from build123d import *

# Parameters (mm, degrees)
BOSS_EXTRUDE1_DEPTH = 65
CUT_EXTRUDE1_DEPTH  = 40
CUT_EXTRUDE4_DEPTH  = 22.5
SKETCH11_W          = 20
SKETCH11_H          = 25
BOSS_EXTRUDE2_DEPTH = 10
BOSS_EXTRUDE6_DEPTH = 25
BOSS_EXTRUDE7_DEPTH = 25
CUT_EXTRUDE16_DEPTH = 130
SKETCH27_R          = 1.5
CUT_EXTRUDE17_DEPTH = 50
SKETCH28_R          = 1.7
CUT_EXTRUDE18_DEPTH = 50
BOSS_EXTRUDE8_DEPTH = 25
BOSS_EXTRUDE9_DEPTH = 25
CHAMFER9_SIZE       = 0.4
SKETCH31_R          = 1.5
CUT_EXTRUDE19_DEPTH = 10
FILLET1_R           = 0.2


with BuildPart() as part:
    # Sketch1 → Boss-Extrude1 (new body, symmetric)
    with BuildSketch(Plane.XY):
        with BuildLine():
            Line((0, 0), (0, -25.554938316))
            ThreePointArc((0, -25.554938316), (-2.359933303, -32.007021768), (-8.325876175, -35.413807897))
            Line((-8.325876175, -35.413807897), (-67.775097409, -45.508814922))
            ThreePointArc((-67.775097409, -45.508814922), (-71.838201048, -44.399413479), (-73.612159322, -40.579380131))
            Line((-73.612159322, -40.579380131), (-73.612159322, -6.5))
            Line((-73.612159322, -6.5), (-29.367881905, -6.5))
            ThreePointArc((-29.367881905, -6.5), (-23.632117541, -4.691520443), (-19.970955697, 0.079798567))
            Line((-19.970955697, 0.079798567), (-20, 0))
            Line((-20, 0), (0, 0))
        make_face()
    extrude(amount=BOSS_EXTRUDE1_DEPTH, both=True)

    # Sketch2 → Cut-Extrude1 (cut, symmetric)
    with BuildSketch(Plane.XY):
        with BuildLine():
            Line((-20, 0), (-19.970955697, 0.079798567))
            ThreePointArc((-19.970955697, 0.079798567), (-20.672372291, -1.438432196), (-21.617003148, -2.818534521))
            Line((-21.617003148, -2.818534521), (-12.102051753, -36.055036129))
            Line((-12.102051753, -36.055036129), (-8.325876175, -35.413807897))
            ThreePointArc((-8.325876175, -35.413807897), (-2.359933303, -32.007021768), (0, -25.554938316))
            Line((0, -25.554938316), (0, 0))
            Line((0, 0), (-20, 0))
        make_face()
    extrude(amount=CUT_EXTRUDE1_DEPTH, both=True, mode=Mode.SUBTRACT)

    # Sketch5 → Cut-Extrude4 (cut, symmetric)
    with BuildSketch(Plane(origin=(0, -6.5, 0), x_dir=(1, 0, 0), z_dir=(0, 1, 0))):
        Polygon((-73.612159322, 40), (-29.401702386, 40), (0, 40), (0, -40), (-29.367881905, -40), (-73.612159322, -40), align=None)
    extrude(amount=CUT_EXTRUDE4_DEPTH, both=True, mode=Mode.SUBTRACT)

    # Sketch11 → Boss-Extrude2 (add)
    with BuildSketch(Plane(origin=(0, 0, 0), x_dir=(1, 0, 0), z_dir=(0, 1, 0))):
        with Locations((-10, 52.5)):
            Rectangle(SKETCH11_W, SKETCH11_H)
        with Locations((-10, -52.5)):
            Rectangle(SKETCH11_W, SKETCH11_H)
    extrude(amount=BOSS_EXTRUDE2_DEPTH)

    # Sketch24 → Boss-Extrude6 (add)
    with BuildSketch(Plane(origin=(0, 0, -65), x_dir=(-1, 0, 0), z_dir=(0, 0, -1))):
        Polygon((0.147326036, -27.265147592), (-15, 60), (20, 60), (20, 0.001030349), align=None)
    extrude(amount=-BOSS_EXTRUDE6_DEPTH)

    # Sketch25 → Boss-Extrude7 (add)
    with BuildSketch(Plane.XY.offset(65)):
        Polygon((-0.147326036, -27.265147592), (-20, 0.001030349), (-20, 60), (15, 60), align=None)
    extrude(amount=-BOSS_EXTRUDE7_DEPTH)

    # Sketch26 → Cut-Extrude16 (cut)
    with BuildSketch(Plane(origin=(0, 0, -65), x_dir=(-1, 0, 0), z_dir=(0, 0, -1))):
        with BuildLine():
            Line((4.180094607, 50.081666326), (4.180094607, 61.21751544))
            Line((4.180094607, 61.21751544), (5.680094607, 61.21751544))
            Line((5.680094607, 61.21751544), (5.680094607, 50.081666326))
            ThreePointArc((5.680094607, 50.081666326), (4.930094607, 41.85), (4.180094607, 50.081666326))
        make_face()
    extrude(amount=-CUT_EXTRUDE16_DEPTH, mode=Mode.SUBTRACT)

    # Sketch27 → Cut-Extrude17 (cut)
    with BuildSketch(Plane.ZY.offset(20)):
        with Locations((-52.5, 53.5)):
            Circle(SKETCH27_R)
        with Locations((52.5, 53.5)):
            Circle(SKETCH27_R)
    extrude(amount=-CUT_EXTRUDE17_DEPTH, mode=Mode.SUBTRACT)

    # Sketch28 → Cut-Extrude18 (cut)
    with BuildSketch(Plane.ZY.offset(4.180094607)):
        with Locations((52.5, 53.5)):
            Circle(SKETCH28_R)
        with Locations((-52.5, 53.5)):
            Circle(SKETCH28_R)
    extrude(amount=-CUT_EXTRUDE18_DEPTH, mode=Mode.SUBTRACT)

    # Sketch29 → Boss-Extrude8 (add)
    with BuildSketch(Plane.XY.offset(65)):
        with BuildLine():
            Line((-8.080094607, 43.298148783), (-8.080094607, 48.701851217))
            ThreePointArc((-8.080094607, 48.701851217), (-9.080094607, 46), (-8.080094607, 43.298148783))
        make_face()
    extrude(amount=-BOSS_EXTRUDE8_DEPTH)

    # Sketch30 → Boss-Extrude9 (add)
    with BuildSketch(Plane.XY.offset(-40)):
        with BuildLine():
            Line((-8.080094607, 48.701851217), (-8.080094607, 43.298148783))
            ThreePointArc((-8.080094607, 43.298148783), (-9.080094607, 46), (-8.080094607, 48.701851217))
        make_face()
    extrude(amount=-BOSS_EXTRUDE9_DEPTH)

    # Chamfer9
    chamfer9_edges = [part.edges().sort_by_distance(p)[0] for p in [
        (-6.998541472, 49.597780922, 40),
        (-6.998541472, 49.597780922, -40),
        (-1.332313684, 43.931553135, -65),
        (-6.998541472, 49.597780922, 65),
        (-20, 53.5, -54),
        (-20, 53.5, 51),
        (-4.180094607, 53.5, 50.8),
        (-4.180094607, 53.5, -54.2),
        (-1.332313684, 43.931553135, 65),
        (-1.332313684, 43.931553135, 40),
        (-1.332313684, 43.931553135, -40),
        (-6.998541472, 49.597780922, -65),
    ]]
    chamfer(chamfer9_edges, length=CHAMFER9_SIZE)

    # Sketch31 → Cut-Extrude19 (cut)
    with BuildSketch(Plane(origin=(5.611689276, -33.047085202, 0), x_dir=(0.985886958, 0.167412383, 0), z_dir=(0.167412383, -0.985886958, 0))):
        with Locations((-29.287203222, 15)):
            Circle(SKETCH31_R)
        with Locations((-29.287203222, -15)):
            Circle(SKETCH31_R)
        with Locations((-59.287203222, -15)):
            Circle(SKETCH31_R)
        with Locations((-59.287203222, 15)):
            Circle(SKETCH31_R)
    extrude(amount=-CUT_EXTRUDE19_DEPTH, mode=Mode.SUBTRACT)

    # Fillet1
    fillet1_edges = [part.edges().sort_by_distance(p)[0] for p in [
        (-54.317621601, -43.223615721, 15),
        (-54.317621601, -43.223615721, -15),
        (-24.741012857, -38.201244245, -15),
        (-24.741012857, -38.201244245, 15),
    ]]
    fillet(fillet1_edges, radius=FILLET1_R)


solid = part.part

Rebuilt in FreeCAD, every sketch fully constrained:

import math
import FreeCAD as App
import Part
import Sketcher
Q = App.Units.Quantity


def edges_at(feature, points):
    """Names of the edges that pass closest to the given points."""
    edges = feature.Shape.Edges
    near = lambda p: min(range(len(edges)), key=lambda i: edges[i].distToShape(Part.Vertex(*p))[0])
    return sorted({f"Edge{near(p) + 1}" for p in points})

doc = App.newDocument("Part")
params = doc.addObject("Spreadsheet::Sheet", "Params")
for row, (alias, value) in enumerate([
    ("sketch1_radius", "10 mm"),
    ("sketch1_radius2", "5 mm"),
    ("sketch1_width", "20 mm"),
    ("pad1_length", "130 mm"),
    ("sketch2_radius", "10 mm"),
    ("sketch2_width", "20 mm"),
    ("pocket1_length", "80 mm"),
    ("sketch3_height", "80 mm"),
    ("pocket2_length", "45 mm"),
    ("sketch4_width", "20 mm"),
    ("sketch4_height", "25 mm"),
    ("pad2_length", "10 mm"),
    ("sketch5_width", "35 mm"),
    ("pad3_length", "25 mm"),
    ("sketch6_width", "35 mm"),
    ("pad4_length", "25 mm"),
    ("sketch7_radius", "4.15 mm"),
    ("sketch7_width", "1.5 mm"),
    ("pocket3_length", "130 mm"),
    ("sketch8_diameter", "3 mm"),
    ("pocket4_length", "50 mm"),
    ("sketch9_diameter", "3.4 mm"),
    ("pocket5_length", "50 mm"),
    ("sketch10_radius", "4.15 mm"),
    ("pad5_length", "25 mm"),
    ("sketch11_radius", "4.15 mm"),
    ("pad6_length", "25 mm"),
    ("chamfer_size", "0.4 mm"),
    ("sketch12_diameter", "3 mm"),
    ("pocket6_length", "10 mm"),
    ("fillet_radius", "0.2 mm"),
], start=1):
    params.set(f"A{row}", alias)
    params.set(f"B{row}", "=" + value)
    params.setAlias(f"B{row}", alias)

body = doc.addObject("PartDesign::Body", "Body")

# Sketch on XY plane
sketch1 = doc.addObject("Sketcher::SketchObject", "Sketch")
body.addObject(sketch1)
sketch1.AttachmentSupport = (doc.XY_Plane, [""])
sketch1.MapMode = "FlatFace"
sketch1.addGeometry([
    Part.LineSegment(App.Vector(0, -25.55, 0), App.Vector(0, 0, 0)),  # 0
    Part.LineSegment(App.Vector(0, 0, 0), App.Vector(-20, 0, 0)),  # 1
    Part.LineSegment(App.Vector(-20, 0, 0), App.Vector(-19.97, 0.08, 0)),  # 2
    Part.ArcOfCircle(Part.Circle(App.Vector(-29.37, 3.5, 0), App.Vector(0, 0, 1), 10), math.radians(-90), math.radians(-20)),  # 3
    Part.LineSegment(App.Vector(-29.37, -6.5, 0), App.Vector(-73.61, -6.5, 0)),  # 4
    Part.LineSegment(App.Vector(-73.61, -6.5, 0), App.Vector(-73.61, -40.58, 0)),  # 5
    Part.ArcOfCircle(Part.Circle(App.Vector(-68.61, -40.58, 0), App.Vector(0, 0, 1), 5), math.radians(-180), math.radians(-80)),  # 6
    Part.LineSegment(App.Vector(-67.78, -45.51, 0), App.Vector(-8.33, -35.41, 0)),  # 7
    Part.ArcOfCircle(Part.Circle(App.Vector(-10, -25.55, 0), App.Vector(0, 0, 1), 10), math.radians(-80), math.radians(0)),  # 8
], False)
sketch1.addConstraint([
    Sketcher.Constraint("Coincident", 0, 2, 1, 1),
    Sketcher.Constraint("Coincident", 1, 2, 2, 1),
    Sketcher.Constraint("Tangent", 2, 2, 3, 2),
    Sketcher.Constraint("Tangent", 3, 1, 4, 1),
    Sketcher.Constraint("Coincident", 4, 2, 5, 1),
    Sketcher.Constraint("Tangent", 5, 2, 6, 1),
    Sketcher.Constraint("Tangent", 6, 2, 7, 1),
    Sketcher.Constraint("Tangent", 7, 2, 8, 1),
    Sketcher.Constraint("Tangent", 8, 2, 0, 1),
    Sketcher.Constraint("Vertical", 0),
    Sketcher.Constraint("Horizontal", 1),
    Sketcher.Constraint("Horizontal", 4),
    Sketcher.Constraint("Vertical", 5),
    Sketcher.Constraint("Coincident", 0, 2, -1, 1),
    Sketcher.Constraint("Equal", 3, 8),
    Sketcher.Constraint("Radius", 3, Q("10 mm")),
    Sketcher.Constraint("Radius", 6, Q("5 mm")),
    Sketcher.Constraint("DistanceX", 1, 2, 1, 1, Q("20 mm")),
    Sketcher.Constraint("Angle", 2, Q("70 deg")),
    Sketcher.Constraint("DistanceY", -1, 1, 3, 3, Q("3.5 mm")),
    Sketcher.Constraint("DistanceY", 0, 1, 0, 2, Q("25.554938 mm")),
    Sketcher.Constraint("DistanceY", 5, 2, 5, 1, Q("34.07938 mm")),
    Sketcher.Constraint("Distance", 7, Q("60.300241 mm")),
])
sketch1.setExpression("Constraints[15]", "Params.sketch1_radius")
sketch1.setExpression("Constraints[16]", "Params.sketch1_radius2")
sketch1.setExpression("Constraints[17]", "Params.sketch1_width")
pad1 = doc.addObject("PartDesign::Pad", "Pad")
body.addObject(pad1)
pad1.Profile = sketch1
pad1.setExpression("Length", "Params.pad1_length")
pad1.Midplane = True

# Sketch on XY plane
sketch2 = doc.addObject("Sketcher::SketchObject", "Sketch001")
body.addObject(sketch2)
sketch2.AttachmentSupport = (doc.XY_Plane, [""])
sketch2.MapMode = "FlatFace"
sketch2.addGeometry([
    Part.LineSegment(App.Vector(-20, 0, 0), App.Vector(-19.97, 0.08, 0)),  # 0
    Part.ArcOfCircle(Part.Circle(App.Vector(-29.37, 3.5, 0), App.Vector(0, 0, 1), 10), math.radians(-39.19), math.radians(-20)),  # 1
    Part.LineSegment(App.Vector(-21.62, -2.82, 0), App.Vector(-12.1, -36.06, 0)),  # 2
    Part.LineSegment(App.Vector(-12.1, -36.06, 0), App.Vector(-8.33, -35.41, 0)),  # 3
    Part.ArcOfCircle(Part.Circle(App.Vector(-10, -25.55, 0), App.Vector(0, 0, 1), 10), math.radians(-80), math.radians(0)),  # 4
    Part.LineSegment(App.Vector(0, -25.55, 0), App.Vector(0, 0, 0)),  # 5
    Part.LineSegment(App.Vector(0, 0, 0), App.Vector(-20, 0, 0)),  # 6
], False)
sketch2.addConstraint([
    Sketcher.Constraint("Tangent", 0, 2, 1, 2),
    Sketcher.Constraint("Coincident", 1, 1, 2, 1),
    Sketcher.Constraint("Coincident", 2, 2, 3, 1),
    Sketcher.Constraint("Tangent", 3, 2, 4, 1),
    Sketcher.Constraint("Tangent", 4, 2, 5, 1),
    Sketcher.Constraint("Coincident", 5, 2, 6, 1),
    Sketcher.Constraint("Coincident", 6, 2, 0, 1),
    Sketcher.Constraint("Vertical", 5),
    Sketcher.Constraint("Horizontal", 6),
    Sketcher.Constraint("Coincident", 5, 2, -1, 1),
    Sketcher.Constraint("Equal", 1, 4),
    Sketcher.Constraint("Radius", 1, Q("10 mm")),
    Sketcher.Constraint("DistanceX", 6, 2, 6, 1, Q("20 mm")),
    Sketcher.Constraint("Angle", 0, Q("70 deg")),
    Sketcher.Constraint("DistanceY", -1, 1, 1, 3, Q("3.5 mm")),
    Sketcher.Constraint("DistanceY", 5, 1, 5, 2, Q("25.554938 mm")),
    Sketcher.Constraint("DistanceY", 2, 2, 1, 1, Q("33.236502 mm")),
    Sketcher.Constraint("Distance", 3, Q("3.830232 mm")),
    Sketcher.Constraint("DistanceX", 2, 2, -1, 1, Q("12.102052 mm")),
])
sketch2.setExpression("Constraints[11]", "Params.sketch2_radius")
sketch2.setExpression("Constraints[12]", "Params.sketch2_width")
pocket1 = doc.addObject("PartDesign::Pocket", "Pocket")
body.addObject(pocket1)
pocket1.Profile = sketch2
pocket1.setExpression("Length", "Params.pocket1_length")
pocket1.Midplane = True

# Sketch on XZ plane
sketch3 = doc.addObject("Sketcher::SketchObject", "Sketch002")
body.addObject(sketch3)
sketch3.AttachmentSupport = (doc.XZ_Plane, [""])
sketch3.MapMode = "FlatFace"
sketch3.AttachmentOffset = App.Placement(App.Vector(0, 0, 6.5), App.Rotation())
sketch3.addGeometry([
    Part.LineSegment(App.Vector(0, -40, 0), App.Vector(-74, -40, 0)),
    Part.LineSegment(App.Vector(-74, -40, 0), App.Vector(-74, 40, 0)),
    Part.LineSegment(App.Vector(-74, 40, 0), App.Vector(0, 40, 0)),
    Part.LineSegment(App.Vector(0, 40, 0), App.Vector(0, -40, 0)),
], False)
sketch3.addConstraint([
    Sketcher.Constraint("Coincident", 0, 2, 1, 1),
    Sketcher.Constraint("Coincident", 1, 2, 2, 1),
    Sketcher.Constraint("Coincident", 2, 2, 3, 1),
    Sketcher.Constraint("Coincident", 3, 2, 0, 1),
    Sketcher.Constraint("Horizontal", 0),
    Sketcher.Constraint("Vertical", 1),
    Sketcher.Constraint("Horizontal", 2),
    Sketcher.Constraint("Vertical", 3),
    Sketcher.Constraint("Symmetric", 2, 2, 3, 2, -1, 1),
    Sketcher.Constraint("DistanceY", 1, 1, 1, 2, Q("80 mm")),
    Sketcher.Constraint("DistanceX", 0, 2, 0, 1, Q("73.612159 mm")),
])
sketch3.setExpression("Constraints[9]", "Params.sketch3_height")
pocket2 = doc.addObject("PartDesign::Pocket", "Pocket001")
body.addObject(pocket2)
pocket2.Profile = sketch3
pocket2.setExpression("Length", "Params.pocket2_length")
pocket2.Midplane = True

# Sketch on XZ plane
sketch4 = doc.addObject("Sketcher::SketchObject", "Sketch003")
body.addObject(sketch4)
sketch4.AttachmentSupport = (doc.XZ_Plane, [""])
sketch4.MapMode = "FlatFace"
sketch4.addGeometry([
    Part.LineSegment(App.Vector(-20, -65, 0), App.Vector(-20, -40, 0)),  # 0
    Part.LineSegment(App.Vector(-20, -40, 0), App.Vector(0, -40, 0)),  # 1
    Part.LineSegment(App.Vector(0, -40, 0), App.Vector(0, -65, 0)),  # 2
    Part.LineSegment(App.Vector(0, -65, 0), App.Vector(-20, -65, 0)),  # 3
    Part.LineSegment(App.Vector(-20, 40, 0), App.Vector(-20, 65, 0)),  # 4
    Part.LineSegment(App.Vector(-20, 65, 0), App.Vector(0, 65, 0)),  # 5
    Part.LineSegment(App.Vector(0, 65, 0), App.Vector(0, 40, 0)),  # 6
    Part.LineSegment(App.Vector(0, 40, 0), App.Vector(-20, 40, 0)),  # 7
], False)
sketch4.addConstraint([
    Sketcher.Constraint("Coincident", 0, 2, 1, 1),
    Sketcher.Constraint("Coincident", 1, 2, 2, 1),
    Sketcher.Constraint("Coincident", 2, 2, 3, 1),
    Sketcher.Constraint("Coincident", 3, 2, 0, 1),
    Sketcher.Constraint("Coincident", 4, 2, 5, 1),
    Sketcher.Constraint("Coincident", 5, 2, 6, 1),
    Sketcher.Constraint("Coincident", 6, 2, 7, 1),
    Sketcher.Constraint("Coincident", 7, 2, 4, 1),
    Sketcher.Constraint("Vertical", 0),
    Sketcher.Constraint("Horizontal", 1),
    Sketcher.Constraint("Vertical", 2),
    Sketcher.Constraint("Horizontal", 3),
    Sketcher.Constraint("Vertical", 4),
    Sketcher.Constraint("Horizontal", 5),
    Sketcher.Constraint("Vertical", 6),
    Sketcher.Constraint("Horizontal", 7),
    Sketcher.Constraint("Symmetric", 2, 2, 5, 2, -1, 1),
    Sketcher.Constraint("Symmetric", 1, 2, 6, 2, -1),
    Sketcher.Constraint("Vertical", 3, 2, 4, 2),
    Sketcher.Constraint("DistanceX", 1, 1, 1, 2, Q("20 mm")),
    Sketcher.Constraint("DistanceY", 0, 1, 0, 2, Q("25 mm")),
    Sketcher.Constraint("DistanceY", 0, 2, -1, 1, Q("40 mm")),
])
sketch4.setExpression("Constraints[19]", "Params.sketch4_width")
sketch4.setExpression("Constraints[20]", "Params.sketch4_height")
pad2 = doc.addObject("PartDesign::Pad", "Pad001")
body.addObject(pad2)
pad2.Profile = sketch4
pad2.setExpression("Length", "Params.pad2_length")
pad2.Reversed = True

# Sketch on XY plane
sketch5 = doc.addObject("Sketcher::SketchObject", "Sketch004")
body.addObject(sketch5)
sketch5.AttachmentSupport = (doc.XY_Plane, [""])
sketch5.MapMode = "FlatFace"
sketch5.AttachmentOffset = App.Placement(App.Vector(0, 0, -65), App.Rotation())
sketch5.addGeometry([
    Part.LineSegment(App.Vector(15, 60, 0), App.Vector(0, -27, 0)),
    Part.LineSegment(App.Vector(0, -27, 0), App.Vector(-20, 0, 0)),
    Part.LineSegment(App.Vector(-20, 0, 0), App.Vector(-20, 60, 0)),
    Part.LineSegment(App.Vector(-20, 60, 0), App.Vector(15, 60, 0)),
], False)
sketch5.addConstraint([
    Sketcher.Constraint("Coincident", 0, 2, 1, 1),
    Sketcher.Constraint("Coincident", 1, 2, 2, 1),
    Sketcher.Constraint("Coincident", 2, 2, 3, 1),
    Sketcher.Constraint("Coincident", 3, 2, 0, 1),
    Sketcher.Constraint("Vertical", 2),
    Sketcher.Constraint("Horizontal", 3),
    Sketcher.Constraint("DistanceX", 3, 1, 3, 2, Q("35 mm")),
    Sketcher.Constraint("DistanceX", 1, 2, -1, 1, Q("20 mm")),
    Sketcher.Constraint("DistanceY", -1, 1, 2, 2, Q("60 mm")),
    Sketcher.Constraint("DistanceY", 2, 1, 2, 2, Q("59.99897 mm")),
    Sketcher.Constraint("Distance", 0, Q("88.570015 mm")),
    Sketcher.Constraint("Distance", 1, Q("33.727928 mm")),
])
sketch5.setExpression("Constraints[6]", "Params.sketch5_width")
pad3 = doc.addObject("PartDesign::Pad", "Pad002")
body.addObject(pad3)
pad3.Profile = sketch5
pad3.setExpression("Length", "Params.pad3_length")

# Sketch on XY plane
sketch6 = doc.addObject("Sketcher::SketchObject", "Sketch005")
body.addObject(sketch6)
sketch6.AttachmentSupport = (doc.XY_Plane, [""])
sketch6.MapMode = "FlatFace"
sketch6.AttachmentOffset = App.Placement(App.Vector(0, 0, 65), App.Rotation())
sketch6.addGeometry([
    Part.LineSegment(App.Vector(-20, 0, 0), App.Vector(0, -27, 0)),
    Part.LineSegment(App.Vector(0, -27, 0), App.Vector(15, 60, 0)),
    Part.LineSegment(App.Vector(15, 60, 0), App.Vector(-20, 60, 0)),
    Part.LineSegment(App.Vector(-20, 60, 0), App.Vector(-20, 0, 0)),
], False)
sketch6.addConstraint([
    Sketcher.Constraint("Coincident", 0, 2, 1, 1),
    Sketcher.Constraint("Coincident", 1, 2, 2, 1),
    Sketcher.Constraint("Coincident", 2, 2, 3, 1),
    Sketcher.Constraint("Coincident", 3, 2, 0, 1),
    Sketcher.Constraint("Horizontal", 2),
    Sketcher.Constraint("Vertical", 3),
    Sketcher.Constraint("DistanceX", 2, 2, 2, 1, Q("35 mm")),
    Sketcher.Constraint("DistanceX", -1, 1, 1, 2, Q("15 mm")),
    Sketcher.Constraint("DistanceY", -1, 1, 1, 2, Q("60 mm")),
    Sketcher.Constraint("DistanceY", 3, 2, 3, 1, Q("59.99897 mm")),
    Sketcher.Constraint("Distance", 0, Q("33.727928 mm")),
    Sketcher.Constraint("Distance", 1, Q("88.570015 mm")),
])
sketch6.setExpression("Constraints[6]", "Params.sketch6_width")
pad4 = doc.addObject("PartDesign::Pad", "Pad003")
body.addObject(pad4)
pad4.Profile = sketch6
pad4.setExpression("Length", "Params.pad4_length")
pad4.Reversed = True

# Sketch on XY plane
sketch7 = doc.addObject("Sketcher::SketchObject", "Sketch006")
body.addObject(sketch7)
sketch7.AttachmentSupport = (doc.XY_Plane, [""])
sketch7.MapMode = "FlatFace"
sketch7.AttachmentOffset = App.Placement(App.Vector(0, 0, -65), App.Rotation())
sketch7.addGeometry([
    Part.LineSegment(App.Vector(-4.2, 61.2, 0), App.Vector(-4.2, 50.1, 0)),
    Part.ArcOfCircle(Part.Circle(App.Vector(-4.9, 46, 0), App.Vector(0, 0, 1), 4.2), math.radians(100), math.radians(440)),
    Part.LineSegment(App.Vector(-5.7, 50.1, 0), App.Vector(-5.7, 61.2, 0)),
    Part.LineSegment(App.Vector(-5.7, 61.2, 0), App.Vector(-4.2, 61.2, 0)),
], False)
sketch7.addConstraint([
    Sketcher.Constraint("Coincident", 0, 2, 1, 2),
    Sketcher.Constraint("Coincident", 1, 1, 2, 1),
    Sketcher.Constraint("Coincident", 2, 2, 3, 1),
    Sketcher.Constraint("Coincident", 3, 2, 0, 1),
    Sketcher.Constraint("Vertical", 0),
    Sketcher.Constraint("Vertical", 2),
    Sketcher.Constraint("Horizontal", 3),
    Sketcher.Constraint("Horizontal", 0, 2, 1, 1),
    Sketcher.Constraint("Radius", 1, Q("4.15 mm")),
    Sketcher.Constraint("DistanceX", 3, 1, 3, 2, Q("1.5 mm")),
    Sketcher.Constraint("DistanceY", -1, 1, 1, 3, Q("46 mm")),
    Sketcher.Constraint("DistanceY", 0, 2, 0, 1, Q("11.135849 mm")),
    Sketcher.Constraint("DistanceX", 1, 3, -1, 1, Q("4.930095 mm")),
])
sketch7.setExpression("Constraints[8]", "Params.sketch7_radius")
sketch7.setExpression("Constraints[9]", "Params.sketch7_width")
pocket3 = doc.addObject("PartDesign::Pocket", "Pocket002")
body.addObject(pocket3)
pocket3.Profile = sketch7
pocket3.setExpression("Length", "Params.pocket3_length")
pocket3.Reversed = True

# Sketch on YZ plane
sketch8 = doc.addObject("Sketcher::SketchObject", "Sketch007")
body.addObject(sketch8)
sketch8.AttachmentSupport = (doc.YZ_Plane, [""])
sketch8.MapMode = "FlatFace"
sketch8.AttachmentOffset = App.Placement(App.Vector(0, 0, -20), App.Rotation())
sketch8.addGeometry([
    Part.Circle(App.Vector(53.5, -52.5, 0), App.Vector(0, 0, 1), 1.5),
    Part.Circle(App.Vector(53.5, 52.5, 0), App.Vector(0, 0, 1), 1.5),
], False)
sketch8.addConstraint([
    Sketcher.Constraint("Equal", 0, 1),
    Sketcher.Constraint("Symmetric", 0, 3, 1, 3, -1),
    Sketcher.Constraint("Diameter", 0, Q("3 mm")),
    Sketcher.Constraint("DistanceY", 0, 3, 1, 3, Q("105 mm")),
    Sketcher.Constraint("DistanceX", -1, 1, 0, 3, Q("53.5 mm")),
])
sketch8.setExpression("Constraints[2]", "Params.sketch8_diameter")
pocket4 = doc.addObject("PartDesign::Pocket", "Pocket003")
body.addObject(pocket4)
pocket4.Profile = sketch8
pocket4.setExpression("Length", "Params.pocket4_length")
pocket4.Reversed = True

# Sketch on YZ plane
sketch9 = doc.addObject("Sketcher::SketchObject", "Sketch008")
body.addObject(sketch9)
sketch9.AttachmentSupport = (doc.YZ_Plane, [""])
sketch9.MapMode = "FlatFace"
sketch9.AttachmentOffset = App.Placement(App.Vector(0, 0, -4.180095), App.Rotation())
sketch9.addGeometry([
    Part.Circle(App.Vector(53.5, 52.5, 0), App.Vector(0, 0, 1), 1.7),
    Part.Circle(App.Vector(53.5, -52.5, 0), App.Vector(0, 0, 1), 1.7),
], False)
sketch9.addConstraint([
    Sketcher.Constraint("Equal", 0, 1),
    Sketcher.Constraint("Symmetric", 0, 3, 1, 3, -1),
    Sketcher.Constraint("Diameter", 0, Q("3.4 mm")),
    Sketcher.Constraint("DistanceY", 1, 3, 0, 3, Q("105 mm")),
    Sketcher.Constraint("DistanceX", -1, 1, 0, 3, Q("53.5 mm")),
])
sketch9.setExpression("Constraints[2]", "Params.sketch9_diameter")
pocket5 = doc.addObject("PartDesign::Pocket", "Pocket004")
body.addObject(pocket5)
pocket5.Profile = sketch9
pocket5.setExpression("Length", "Params.pocket5_length")
pocket5.Reversed = True

# Sketch on XY plane
sketch10 = doc.addObject("Sketcher::SketchObject", "Sketch009")
body.addObject(sketch10)
sketch10.AttachmentSupport = (doc.XY_Plane, [""])
sketch10.MapMode = "FlatFace"
sketch10.AttachmentOffset = App.Placement(App.Vector(0, 0, 65), App.Rotation())
sketch10.addGeometry([
    Part.LineSegment(App.Vector(-8.1, 43.3, 0), App.Vector(-8.1, 48.7, 0)),
    Part.ArcOfCircle(Part.Circle(App.Vector(-4.9, 46, 0), App.Vector(0, 0, 1), 4.1), math.radians(139), math.radians(221)),
], False)
sketch10.addConstraint([
    Sketcher.Constraint("Coincident", 0, 1, 1, 2),
    Sketcher.Constraint("Coincident", 1, 1, 0, 2),
    Sketcher.Constraint("Vertical", 0),
    Sketcher.Constraint("Radius", 1, Q("4.15 mm")),
    Sketcher.Constraint("DistanceY", -1, 1, 1, 3, Q("46 mm")),
    Sketcher.Constraint("DistanceX", 0, 1, 1, 3, Q("3.15 mm")),
    Sketcher.Constraint("DistanceX", 1, 3, -1, 1, Q("4.930095 mm")),
])
sketch10.setExpression("Constraints[3]", "Params.sketch10_radius")
pad5 = doc.addObject("PartDesign::Pad", "Pad004")
body.addObject(pad5)
pad5.Profile = sketch10
pad5.setExpression("Length", "Params.pad5_length")
pad5.Reversed = True

# Sketch on XY plane
sketch11 = doc.addObject("Sketcher::SketchObject", "Sketch010")
body.addObject(sketch11)
sketch11.AttachmentSupport = (doc.XY_Plane, [""])
sketch11.MapMode = "FlatFace"
sketch11.AttachmentOffset = App.Placement(App.Vector(0, 0, -40), App.Rotation())
sketch11.addGeometry([
    Part.LineSegment(App.Vector(-8.1, 43.3, 0), App.Vector(-8.1, 48.7, 0)),
    Part.ArcOfCircle(Part.Circle(App.Vector(-4.9, 46, 0), App.Vector(0, 0, 1), 4.1), math.radians(139), math.radians(221)),
], False)
sketch11.addConstraint([
    Sketcher.Constraint("Coincident", 0, 1, 1, 2),
    Sketcher.Constraint("Coincident", 1, 1, 0, 2),
    Sketcher.Constraint("Vertical", 0),
    Sketcher.Constraint("Radius", 1, Q("4.15 mm")),
    Sketcher.Constraint("DistanceY", -1, 1, 1, 3, Q("46 mm")),
    Sketcher.Constraint("DistanceX", 0, 1, 1, 3, Q("3.15 mm")),
    Sketcher.Constraint("DistanceX", 1, 3, -1, 1, Q("4.930095 mm")),
])
sketch11.setExpression("Constraints[3]", "Params.sketch11_radius")
pad6 = doc.addObject("PartDesign::Pad", "Pad005")
body.addObject(pad6)
pad6.Profile = sketch11
pad6.setExpression("Length", "Params.pad6_length")
pad6.Reversed = True
doc.recompute()

chamfer = doc.addObject("PartDesign::Chamfer", "Chamfer")
body.addObject(chamfer)
chamfer.Base = (pad6, edges_at(pad6, [
    (-6.999, 49.598, 40),
    (-6.999, 49.598, -40),
    (-1.332, 43.932, -65),
    (-6.999, 49.598, 65),
    (-20, 53.5, -54),
    (-20, 53.5, 51),
    (-4.18, 53.5, 50.8),
    (-4.18, 53.5, -54.2),
    (-1.332, 43.932, 65),
    (-1.332, 43.932, 40),
    (-1.332, 43.932, -40),
    (-6.999, 49.598, -65),
]))
chamfer.setExpression("Size", "Params.chamfer_size")

# Sketch on an angled plane
sketch12 = doc.addObject("Sketcher::SketchObject", "Sketch011")
body.addObject(sketch12)
sketch12.Placement = App.Placement(App.Vector(5.611689, -33.047085, 0), App.Rotation(App.Vector(0.985886958, 0.167412383, 0), App.Vector(0, 0, 1), App.Vector(0.167412383, -0.985886958, 0), "ZXY"))
sketch12.addGeometry([
    Part.Circle(App.Vector(-29.3, 15, 0), App.Vector(0, 0, 1), 1.5),
    Part.Circle(App.Vector(-29.3, -15, 0), App.Vector(0, 0, 1), 1.5),
    Part.Circle(App.Vector(-59.3, -15, 0), App.Vector(0, 0, 1), 1.5),
    Part.Circle(App.Vector(-59.3, 15, 0), App.Vector(0, 0, 1), 1.5),
], False)
sketch12.addConstraint([
    Sketcher.Constraint("Equal", 0, 1),
    Sketcher.Constraint("Equal", 1, 2),
    Sketcher.Constraint("Equal", 2, 3),
    Sketcher.Constraint("Symmetric", 0, 3, 1, 3, -1),
    Sketcher.Constraint("Symmetric", 2, 3, 3, 3, -1),
    Sketcher.Constraint("Horizontal", 1, 3, 2, 3),
    Sketcher.Constraint("Diameter", 0, Q("3 mm")),
    Sketcher.Constraint("DistanceY", -1, 1, 0, 3, Q("15 mm")),
    Sketcher.Constraint("DistanceX", 2, 3, 1, 3, Q("30 mm")),
    Sketcher.Constraint("DistanceX", 0, 3, -1, 1, Q("29.287203 mm")),
])
sketch12.setExpression("Constraints[6]", "Params.sketch12_diameter")
pocket6 = doc.addObject("PartDesign::Pocket", "Pocket005")
body.addObject(pocket6)
pocket6.Profile = sketch12
pocket6.setExpression("Length", "Params.pocket6_length")
doc.recompute()

fillet = doc.addObject("PartDesign::Fillet", "Fillet")
body.addObject(fillet)
fillet.Base = (pocket6, edges_at(pocket6, [
    (-54.318, -43.224, 15),
    (-54.318, -43.224, -15),
    (-24.741, -38.201, -15),
    (-24.741, -38.201, 15),
]))
fillet.setExpression("Radius", "Params.fillet_radius")

doc.recompute()
